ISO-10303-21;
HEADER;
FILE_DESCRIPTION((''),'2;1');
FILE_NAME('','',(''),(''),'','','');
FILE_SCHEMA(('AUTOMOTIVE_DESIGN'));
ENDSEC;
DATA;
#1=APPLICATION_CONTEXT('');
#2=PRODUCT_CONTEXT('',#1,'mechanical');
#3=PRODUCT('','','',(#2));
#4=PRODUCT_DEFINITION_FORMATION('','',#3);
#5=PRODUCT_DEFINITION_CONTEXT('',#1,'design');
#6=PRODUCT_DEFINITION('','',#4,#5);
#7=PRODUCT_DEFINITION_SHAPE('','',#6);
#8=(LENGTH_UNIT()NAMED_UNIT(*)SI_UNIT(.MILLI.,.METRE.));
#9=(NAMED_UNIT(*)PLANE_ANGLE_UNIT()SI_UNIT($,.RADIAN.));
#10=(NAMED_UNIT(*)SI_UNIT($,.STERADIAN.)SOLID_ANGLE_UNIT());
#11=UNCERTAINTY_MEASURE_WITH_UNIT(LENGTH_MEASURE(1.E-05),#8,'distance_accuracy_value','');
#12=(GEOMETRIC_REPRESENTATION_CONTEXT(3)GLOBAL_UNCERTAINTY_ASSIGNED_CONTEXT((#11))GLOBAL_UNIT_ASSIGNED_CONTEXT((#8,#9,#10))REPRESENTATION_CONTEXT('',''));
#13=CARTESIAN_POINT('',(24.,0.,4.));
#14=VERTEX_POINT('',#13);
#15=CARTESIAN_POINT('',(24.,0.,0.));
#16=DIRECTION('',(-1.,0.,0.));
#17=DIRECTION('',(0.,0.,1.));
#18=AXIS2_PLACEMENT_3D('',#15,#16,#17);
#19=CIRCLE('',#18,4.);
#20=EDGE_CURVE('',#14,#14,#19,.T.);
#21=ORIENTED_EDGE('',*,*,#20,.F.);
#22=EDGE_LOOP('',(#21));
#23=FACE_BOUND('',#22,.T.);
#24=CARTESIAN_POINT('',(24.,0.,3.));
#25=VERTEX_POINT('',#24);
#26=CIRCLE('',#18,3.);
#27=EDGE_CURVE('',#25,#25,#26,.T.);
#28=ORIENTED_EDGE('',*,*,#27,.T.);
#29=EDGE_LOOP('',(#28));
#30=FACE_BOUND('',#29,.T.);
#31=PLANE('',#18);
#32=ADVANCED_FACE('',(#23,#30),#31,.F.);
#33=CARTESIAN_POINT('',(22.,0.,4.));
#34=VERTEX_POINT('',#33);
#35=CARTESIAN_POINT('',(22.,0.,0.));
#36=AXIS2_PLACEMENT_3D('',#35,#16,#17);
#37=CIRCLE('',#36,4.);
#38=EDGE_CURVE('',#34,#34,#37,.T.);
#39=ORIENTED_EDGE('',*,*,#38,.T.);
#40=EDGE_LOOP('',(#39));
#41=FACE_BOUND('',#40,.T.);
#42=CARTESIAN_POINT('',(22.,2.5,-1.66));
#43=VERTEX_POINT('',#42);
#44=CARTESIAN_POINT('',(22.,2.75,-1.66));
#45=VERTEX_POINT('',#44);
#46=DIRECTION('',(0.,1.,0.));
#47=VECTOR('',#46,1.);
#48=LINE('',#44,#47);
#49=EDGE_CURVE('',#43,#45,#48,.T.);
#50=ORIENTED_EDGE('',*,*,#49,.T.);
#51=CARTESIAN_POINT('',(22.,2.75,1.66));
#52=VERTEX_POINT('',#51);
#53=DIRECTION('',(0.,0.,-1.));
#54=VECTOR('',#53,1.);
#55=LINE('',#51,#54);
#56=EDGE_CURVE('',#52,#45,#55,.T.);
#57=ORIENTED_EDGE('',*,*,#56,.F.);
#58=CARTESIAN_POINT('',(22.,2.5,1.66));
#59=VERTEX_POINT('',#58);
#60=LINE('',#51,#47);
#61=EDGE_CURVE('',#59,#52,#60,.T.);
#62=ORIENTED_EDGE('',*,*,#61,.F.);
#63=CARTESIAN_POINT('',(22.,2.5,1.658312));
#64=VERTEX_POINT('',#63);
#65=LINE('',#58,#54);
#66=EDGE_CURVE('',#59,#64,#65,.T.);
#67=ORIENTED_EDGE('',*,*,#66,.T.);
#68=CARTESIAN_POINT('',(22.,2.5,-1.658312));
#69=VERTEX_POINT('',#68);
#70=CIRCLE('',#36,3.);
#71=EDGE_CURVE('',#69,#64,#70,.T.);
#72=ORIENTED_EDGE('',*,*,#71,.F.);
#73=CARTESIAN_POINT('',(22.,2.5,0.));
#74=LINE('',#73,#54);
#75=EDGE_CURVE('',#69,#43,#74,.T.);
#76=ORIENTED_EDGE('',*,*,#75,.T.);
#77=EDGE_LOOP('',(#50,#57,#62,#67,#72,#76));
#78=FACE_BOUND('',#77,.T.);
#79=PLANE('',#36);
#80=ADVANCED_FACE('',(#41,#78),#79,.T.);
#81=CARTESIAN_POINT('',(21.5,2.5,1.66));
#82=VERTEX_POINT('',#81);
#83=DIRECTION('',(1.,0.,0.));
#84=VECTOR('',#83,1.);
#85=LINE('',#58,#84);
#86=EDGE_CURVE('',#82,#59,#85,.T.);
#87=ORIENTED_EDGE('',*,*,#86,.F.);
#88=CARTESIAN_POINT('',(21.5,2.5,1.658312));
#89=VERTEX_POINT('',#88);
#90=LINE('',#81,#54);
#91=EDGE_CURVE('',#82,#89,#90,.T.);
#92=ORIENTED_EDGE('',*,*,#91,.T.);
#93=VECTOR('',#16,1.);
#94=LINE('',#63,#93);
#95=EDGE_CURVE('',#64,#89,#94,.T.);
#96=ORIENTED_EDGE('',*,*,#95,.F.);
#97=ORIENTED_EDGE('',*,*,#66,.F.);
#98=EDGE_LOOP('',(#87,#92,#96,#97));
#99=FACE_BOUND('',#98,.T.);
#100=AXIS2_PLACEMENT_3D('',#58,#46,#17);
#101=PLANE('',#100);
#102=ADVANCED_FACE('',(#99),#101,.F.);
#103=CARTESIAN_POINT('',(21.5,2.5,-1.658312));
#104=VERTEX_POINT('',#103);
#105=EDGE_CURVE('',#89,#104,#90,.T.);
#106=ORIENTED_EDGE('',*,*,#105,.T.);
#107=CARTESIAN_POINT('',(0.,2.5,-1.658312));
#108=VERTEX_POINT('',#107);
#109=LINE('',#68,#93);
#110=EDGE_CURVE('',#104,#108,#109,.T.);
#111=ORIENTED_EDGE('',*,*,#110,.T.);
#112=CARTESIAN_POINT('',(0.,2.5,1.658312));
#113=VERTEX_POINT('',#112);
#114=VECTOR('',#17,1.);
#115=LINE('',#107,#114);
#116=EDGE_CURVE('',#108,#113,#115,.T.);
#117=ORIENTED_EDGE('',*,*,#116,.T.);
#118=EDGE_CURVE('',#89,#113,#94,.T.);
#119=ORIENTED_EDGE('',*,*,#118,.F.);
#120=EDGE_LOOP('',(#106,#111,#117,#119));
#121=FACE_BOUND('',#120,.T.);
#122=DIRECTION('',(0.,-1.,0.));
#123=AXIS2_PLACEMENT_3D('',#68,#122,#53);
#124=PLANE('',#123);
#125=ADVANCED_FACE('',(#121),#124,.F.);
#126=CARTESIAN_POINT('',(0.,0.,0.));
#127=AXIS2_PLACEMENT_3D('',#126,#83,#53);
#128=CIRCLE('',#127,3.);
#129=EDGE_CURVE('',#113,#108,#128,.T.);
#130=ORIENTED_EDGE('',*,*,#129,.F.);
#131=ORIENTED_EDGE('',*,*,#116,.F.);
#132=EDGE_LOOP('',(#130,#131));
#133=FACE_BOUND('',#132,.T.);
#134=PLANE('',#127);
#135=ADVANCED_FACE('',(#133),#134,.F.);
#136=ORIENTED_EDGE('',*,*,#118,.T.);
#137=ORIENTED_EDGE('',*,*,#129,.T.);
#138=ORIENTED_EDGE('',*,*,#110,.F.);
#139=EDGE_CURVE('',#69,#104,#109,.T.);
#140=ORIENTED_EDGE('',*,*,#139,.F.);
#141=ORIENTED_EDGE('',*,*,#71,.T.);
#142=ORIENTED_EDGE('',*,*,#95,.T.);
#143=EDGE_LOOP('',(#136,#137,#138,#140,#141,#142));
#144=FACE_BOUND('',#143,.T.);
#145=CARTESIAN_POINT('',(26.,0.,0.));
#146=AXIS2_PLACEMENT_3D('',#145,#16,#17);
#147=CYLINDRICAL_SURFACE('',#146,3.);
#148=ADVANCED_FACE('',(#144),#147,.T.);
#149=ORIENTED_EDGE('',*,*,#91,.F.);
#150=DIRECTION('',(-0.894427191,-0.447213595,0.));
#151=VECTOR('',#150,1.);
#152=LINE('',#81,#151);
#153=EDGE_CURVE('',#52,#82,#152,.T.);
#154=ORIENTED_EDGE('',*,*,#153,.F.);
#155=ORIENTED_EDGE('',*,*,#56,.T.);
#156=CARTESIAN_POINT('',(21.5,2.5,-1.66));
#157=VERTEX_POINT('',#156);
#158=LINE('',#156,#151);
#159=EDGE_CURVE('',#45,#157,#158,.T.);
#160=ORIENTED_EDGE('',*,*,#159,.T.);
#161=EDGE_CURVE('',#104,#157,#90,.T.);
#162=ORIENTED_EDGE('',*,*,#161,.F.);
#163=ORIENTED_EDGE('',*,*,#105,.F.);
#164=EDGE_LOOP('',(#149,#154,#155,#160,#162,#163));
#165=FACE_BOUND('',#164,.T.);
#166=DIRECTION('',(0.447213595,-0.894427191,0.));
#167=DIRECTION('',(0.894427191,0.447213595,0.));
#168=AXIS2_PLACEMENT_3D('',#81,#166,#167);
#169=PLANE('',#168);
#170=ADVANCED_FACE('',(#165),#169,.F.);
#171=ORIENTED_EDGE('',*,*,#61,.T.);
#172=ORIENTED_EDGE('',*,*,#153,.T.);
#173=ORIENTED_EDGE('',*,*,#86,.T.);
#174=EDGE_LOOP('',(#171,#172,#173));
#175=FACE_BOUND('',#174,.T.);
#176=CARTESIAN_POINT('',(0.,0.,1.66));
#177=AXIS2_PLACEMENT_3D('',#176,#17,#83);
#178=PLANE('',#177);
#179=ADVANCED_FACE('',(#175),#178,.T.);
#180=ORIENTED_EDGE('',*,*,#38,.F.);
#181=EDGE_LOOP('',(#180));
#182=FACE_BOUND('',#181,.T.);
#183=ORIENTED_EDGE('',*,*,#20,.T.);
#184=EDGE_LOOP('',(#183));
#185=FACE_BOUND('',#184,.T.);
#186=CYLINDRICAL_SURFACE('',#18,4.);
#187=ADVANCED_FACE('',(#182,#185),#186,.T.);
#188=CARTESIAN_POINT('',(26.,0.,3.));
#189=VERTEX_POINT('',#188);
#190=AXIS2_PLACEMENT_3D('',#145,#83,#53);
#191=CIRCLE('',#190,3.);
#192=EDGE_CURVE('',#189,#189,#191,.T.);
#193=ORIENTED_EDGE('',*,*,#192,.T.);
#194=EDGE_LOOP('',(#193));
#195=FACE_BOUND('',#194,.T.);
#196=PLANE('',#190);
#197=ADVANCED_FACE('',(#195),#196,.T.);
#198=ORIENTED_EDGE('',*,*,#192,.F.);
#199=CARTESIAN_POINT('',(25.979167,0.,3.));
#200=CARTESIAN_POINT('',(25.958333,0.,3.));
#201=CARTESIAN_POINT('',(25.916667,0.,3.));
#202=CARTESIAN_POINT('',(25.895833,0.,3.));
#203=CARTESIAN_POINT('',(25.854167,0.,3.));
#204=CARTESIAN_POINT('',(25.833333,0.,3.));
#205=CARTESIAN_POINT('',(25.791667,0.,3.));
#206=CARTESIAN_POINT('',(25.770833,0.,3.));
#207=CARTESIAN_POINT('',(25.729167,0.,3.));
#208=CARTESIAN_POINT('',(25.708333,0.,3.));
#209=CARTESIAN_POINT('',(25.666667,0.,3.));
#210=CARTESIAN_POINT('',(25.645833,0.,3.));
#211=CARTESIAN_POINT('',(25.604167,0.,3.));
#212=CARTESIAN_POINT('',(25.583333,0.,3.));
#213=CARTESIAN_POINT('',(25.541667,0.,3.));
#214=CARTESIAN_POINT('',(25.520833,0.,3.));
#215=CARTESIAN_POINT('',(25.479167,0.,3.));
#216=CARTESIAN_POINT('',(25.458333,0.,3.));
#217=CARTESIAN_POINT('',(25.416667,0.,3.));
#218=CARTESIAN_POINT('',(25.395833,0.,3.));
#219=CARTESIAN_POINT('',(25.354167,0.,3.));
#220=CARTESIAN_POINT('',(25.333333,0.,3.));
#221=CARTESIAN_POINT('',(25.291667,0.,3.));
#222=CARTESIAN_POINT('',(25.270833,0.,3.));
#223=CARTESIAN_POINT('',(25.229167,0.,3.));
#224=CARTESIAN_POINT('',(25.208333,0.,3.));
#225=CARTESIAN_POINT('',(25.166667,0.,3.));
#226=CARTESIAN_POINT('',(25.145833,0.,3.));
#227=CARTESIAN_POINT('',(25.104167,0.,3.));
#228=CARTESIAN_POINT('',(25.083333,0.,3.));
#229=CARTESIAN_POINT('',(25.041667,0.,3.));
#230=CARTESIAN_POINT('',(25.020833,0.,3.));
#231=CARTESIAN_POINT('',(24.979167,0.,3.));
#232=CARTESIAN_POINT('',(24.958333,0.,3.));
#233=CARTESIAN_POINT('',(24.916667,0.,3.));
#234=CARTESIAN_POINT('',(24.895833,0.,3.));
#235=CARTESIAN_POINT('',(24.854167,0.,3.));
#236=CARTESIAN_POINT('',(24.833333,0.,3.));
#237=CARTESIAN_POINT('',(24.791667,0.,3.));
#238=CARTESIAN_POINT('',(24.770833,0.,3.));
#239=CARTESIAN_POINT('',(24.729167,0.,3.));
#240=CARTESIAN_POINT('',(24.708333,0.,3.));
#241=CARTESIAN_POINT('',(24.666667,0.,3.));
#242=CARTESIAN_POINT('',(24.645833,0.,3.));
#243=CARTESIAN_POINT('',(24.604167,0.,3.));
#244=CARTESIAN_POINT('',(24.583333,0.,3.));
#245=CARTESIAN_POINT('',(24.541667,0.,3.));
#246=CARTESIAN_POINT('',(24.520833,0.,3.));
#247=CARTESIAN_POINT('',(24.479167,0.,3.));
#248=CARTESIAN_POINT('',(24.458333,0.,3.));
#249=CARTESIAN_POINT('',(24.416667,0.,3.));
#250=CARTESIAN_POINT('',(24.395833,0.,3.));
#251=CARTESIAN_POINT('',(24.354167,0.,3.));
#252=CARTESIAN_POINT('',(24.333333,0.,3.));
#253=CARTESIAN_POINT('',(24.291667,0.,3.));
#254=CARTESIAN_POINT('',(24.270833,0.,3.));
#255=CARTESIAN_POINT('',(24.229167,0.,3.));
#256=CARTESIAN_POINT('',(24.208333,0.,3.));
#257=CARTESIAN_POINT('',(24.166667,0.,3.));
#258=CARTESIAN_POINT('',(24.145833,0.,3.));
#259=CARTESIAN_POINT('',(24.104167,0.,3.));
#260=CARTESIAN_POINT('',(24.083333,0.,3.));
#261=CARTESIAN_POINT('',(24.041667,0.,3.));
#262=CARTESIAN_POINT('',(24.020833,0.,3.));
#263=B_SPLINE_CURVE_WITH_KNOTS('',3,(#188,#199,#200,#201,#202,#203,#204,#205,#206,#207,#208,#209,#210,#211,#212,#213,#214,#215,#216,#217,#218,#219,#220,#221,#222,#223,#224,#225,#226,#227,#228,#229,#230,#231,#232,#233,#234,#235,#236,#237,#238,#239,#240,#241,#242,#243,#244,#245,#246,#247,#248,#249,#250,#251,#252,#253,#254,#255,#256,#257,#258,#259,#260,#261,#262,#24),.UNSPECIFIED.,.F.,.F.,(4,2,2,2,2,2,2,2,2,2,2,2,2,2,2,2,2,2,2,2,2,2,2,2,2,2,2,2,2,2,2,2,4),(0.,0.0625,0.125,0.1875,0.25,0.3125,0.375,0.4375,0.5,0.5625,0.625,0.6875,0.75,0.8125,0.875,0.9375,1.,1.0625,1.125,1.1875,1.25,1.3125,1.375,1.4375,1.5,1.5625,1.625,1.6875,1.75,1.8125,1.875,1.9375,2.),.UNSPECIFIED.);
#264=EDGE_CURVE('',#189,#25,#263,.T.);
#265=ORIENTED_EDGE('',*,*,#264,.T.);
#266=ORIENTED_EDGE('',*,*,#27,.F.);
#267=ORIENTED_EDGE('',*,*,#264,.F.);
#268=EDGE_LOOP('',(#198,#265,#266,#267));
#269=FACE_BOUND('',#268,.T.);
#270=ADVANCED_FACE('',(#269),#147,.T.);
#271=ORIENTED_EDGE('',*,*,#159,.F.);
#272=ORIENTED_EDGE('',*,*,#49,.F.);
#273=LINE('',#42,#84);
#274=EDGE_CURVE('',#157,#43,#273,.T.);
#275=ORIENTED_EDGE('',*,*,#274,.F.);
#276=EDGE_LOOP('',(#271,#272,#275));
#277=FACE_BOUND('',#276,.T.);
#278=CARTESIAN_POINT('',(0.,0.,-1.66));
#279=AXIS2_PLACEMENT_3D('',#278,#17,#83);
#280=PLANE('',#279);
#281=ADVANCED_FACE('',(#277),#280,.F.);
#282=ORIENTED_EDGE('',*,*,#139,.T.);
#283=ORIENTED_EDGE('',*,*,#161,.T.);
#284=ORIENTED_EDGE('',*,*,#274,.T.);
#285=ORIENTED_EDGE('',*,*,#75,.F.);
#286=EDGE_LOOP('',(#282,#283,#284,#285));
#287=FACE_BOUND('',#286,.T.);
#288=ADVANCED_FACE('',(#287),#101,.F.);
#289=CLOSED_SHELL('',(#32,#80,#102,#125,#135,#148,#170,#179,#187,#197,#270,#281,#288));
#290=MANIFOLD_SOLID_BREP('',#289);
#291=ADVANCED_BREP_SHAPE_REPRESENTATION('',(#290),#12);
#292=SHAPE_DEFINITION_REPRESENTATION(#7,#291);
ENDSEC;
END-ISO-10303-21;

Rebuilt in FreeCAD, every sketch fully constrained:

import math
import FreeCAD as App
import Part
import Sketcher

doc = App.newDocument("Part")
body = doc.addObject("PartDesign::Body", "Body")

# Sketch on YZ plane
sketch1 = body.newObject("Sketcher::SketchObject", "Sketch")
sketch1.AttachmentSupport = (doc.getObject("YZ_Plane"), [""])
sketch1.MapMode = "FlatFace"
sketch1.addGeometry(Part.Circle(App.Vector(0, 0, 0), App.Vector(0, 0, 1), 3), False)
sketch1.addConstraint([
    Sketcher.Constraint("Coincident", 0, 3, -1, 1),
    Sketcher.Constraint("Diameter", 0, 6.0),
])
pad1 = body.newObject("PartDesign::Pad", "Pad")
pad1.Profile = sketch1
pad1.Length = 26

# Sketch on YZ plane
sketch2 = body.newObject("Sketcher::SketchObject", "Sketch001")
sketch2.AttachmentSupport = (doc.getObject("YZ_Plane"), [""])
sketch2.MapMode = "FlatFace"
sketch2.addGeometry([
    Part.LineSegment(App.Vector(2.5, -1.7, 0), App.Vector(2.5, 1.7, 0)),
    Part.ArcOfCircle(Part.Circle(App.Vector(0, 0, 0), App.Vector(0, 0, 1), 3), math.radians(-34), math.radians(34)),
], False)
sketch2.addConstraint([
    Sketcher.Constraint("Coincident", 0, 1, 1, 1),
    Sketcher.Constraint("Coincident", 1, 2, 0, 2),
    Sketcher.Constraint("Vertical", 0),
    Sketcher.Constraint("Coincident", 1, 3, -1, 1),
    Sketcher.Constraint("Radius", 1, 3.0),
    Sketcher.Constraint("DistanceX", -1, 1, 0, 1, 2.5),
])
pocket1 = body.newObject("PartDesign::Pocket", "Pocket")
pocket1.Profile = sketch2
pocket1.Length = 22
pocket1.Reversed = True

# Sketch on YZ plane
sketch3 = body.newObject("Sketcher::SketchObject", "Sketch002")
sketch3.AttachmentSupport = (doc.getObject("YZ_Plane"), [""])
sketch3.MapMode = "FlatFace"
sketch3.AttachmentOffset = App.Placement(App.Vector(0, 0, 22), App.Rotation())
sketch3.addGeometry([
    Part.Circle(App.Vector(0, 0, 0), App.Vector(0, 0, 1), 4),
    Part.Circle(App.Vector(0, 0, 0), App.Vector(0, 0, 1), 3),
], False)
sketch3.addConstraint([
    Sketcher.Constraint("Coincident", 0, 3, -1, 1),
    Sketcher.Constraint("Coincident", 1, 3, -1, 1),
    Sketcher.Constraint("Diameter", 0, 8.0),
    Sketcher.Constraint("Diameter", 1, 6.0),
])
pad2 = body.newObject("PartDesign::Pad", "Pad001")
pad2.Profile = sketch3
pad2.Length = 2

# Sketch on XY plane
sketch4 = body.newObject("Sketcher::SketchObject", "Sketch003")
sketch4.AttachmentSupport = (doc.getObject("XY_Plane"), [""])
sketch4.MapMode = "FlatFace"
sketch4.addGeometry([
    Part.LineSegment(App.Vector(22, 2.75, 0), App.Vector(21.5, 2.5, 0)),
    Part.LineSegment(App.Vector(21.5, 2.5, 0), App.Vector(22, 2.5, 0)),
    Part.LineSegment(App.Vector(22, 2.5, 0), App.Vector(22, 2.75, 0)),
], False)
sketch4.addConstraint([
    Sketcher.Constraint("Coincident", 0, 2, 1, 1),
    Sketcher.Constraint("Coincident", 1, 2, 2, 1),
    Sketcher.Constraint("Coincident", 2, 2, 0, 1),
    Sketcher.Constraint("Horizontal", 1),
    Sketcher.Constraint("Vertical", 2),
    Sketcher.Constraint("DistanceX", 1, 1, 1, 2, 0.5),
    Sketcher.Constraint("DistanceX", -1, 1, 1, 2, 22.0),
    Sketcher.Constraint("DistanceY", 2, 1, 2, 2, 0.25),
    Sketcher.Constraint("DistanceY", -1, 1, 0, 2, 2.5),
])
pad3 = body.newObject("PartDesign::Pad", "Pad002")
pad3.Profile = sketch4
pad3.Length = 3.32
pad3.Midplane = True

doc.recompute()
